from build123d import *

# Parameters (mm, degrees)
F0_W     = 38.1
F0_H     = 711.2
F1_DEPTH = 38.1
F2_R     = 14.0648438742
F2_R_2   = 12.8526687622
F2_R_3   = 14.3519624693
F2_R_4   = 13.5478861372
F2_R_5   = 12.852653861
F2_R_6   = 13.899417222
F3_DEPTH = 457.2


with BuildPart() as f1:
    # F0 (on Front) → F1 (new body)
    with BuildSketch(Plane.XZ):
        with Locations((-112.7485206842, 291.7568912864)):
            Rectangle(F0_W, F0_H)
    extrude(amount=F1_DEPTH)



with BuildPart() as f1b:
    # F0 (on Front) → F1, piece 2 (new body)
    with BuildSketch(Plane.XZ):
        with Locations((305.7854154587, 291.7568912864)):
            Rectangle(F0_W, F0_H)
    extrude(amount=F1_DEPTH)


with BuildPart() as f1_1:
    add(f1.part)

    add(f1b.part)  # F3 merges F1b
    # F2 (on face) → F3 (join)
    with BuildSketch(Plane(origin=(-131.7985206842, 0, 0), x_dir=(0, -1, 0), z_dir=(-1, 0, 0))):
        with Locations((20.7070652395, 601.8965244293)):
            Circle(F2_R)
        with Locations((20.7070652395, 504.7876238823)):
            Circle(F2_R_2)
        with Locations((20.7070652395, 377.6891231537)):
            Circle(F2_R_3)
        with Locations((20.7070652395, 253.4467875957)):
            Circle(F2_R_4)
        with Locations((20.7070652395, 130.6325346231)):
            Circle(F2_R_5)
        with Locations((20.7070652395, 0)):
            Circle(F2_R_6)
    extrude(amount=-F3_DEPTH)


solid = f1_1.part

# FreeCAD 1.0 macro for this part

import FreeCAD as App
import Part
import Sketcher
from FreeCAD import Vector
Q = App.Units.Quantity

doc = App.newDocument("Part")
body = doc.addObject("PartDesign::Body", "Body")

sketch1 = body.newObject("Sketcher::SketchObject", "Sketch")
sketch1.AttachmentSupport = (doc.getObject("XZ_Plane"), [""])
sketch1.MapMode = "FlatFace"
sketch1.addGeometry([
    Part.LineSegment(Vector(-132, 647, 0), Vector(-132, -64, 0)),
    Part.LineSegment(Vector(-132, -64, 0), Vector(-94, -64, 0)),
    Part.LineSegment(Vector(-94, -64, 0), Vector(-94, 647, 0)),
    Part.LineSegment(Vector(-94, 647, 0), Vector(-132, 647, 0)),
], False)
sketch1.addConstraint([
    Sketcher.Constraint("Coincident", 0, 2, 1, 1),
    Sketcher.Constraint("Coincident", 1, 2, 2, 1),
    Sketcher.Constraint("Coincident", 2, 2, 3, 1),
    Sketcher.Constraint("Coincident", 3, 2, 0, 1),
    Sketcher.Constraint("Vertical", 0),
    Sketcher.Constraint("Horizontal", 1),
    Sketcher.Constraint("Vertical", 2),
    Sketcher.Constraint("Horizontal", 3),
    Sketcher.Constraint("DistanceY", 0, 2, 0, 1, Q("28 in")),
    Sketcher.Constraint("DistanceX", 1, 1, 1, 2, Q("1.5 in")),
    Sketcher.Constraint("DistanceX", 0, 2, -1, 1, 131.798521),
    Sketcher.Constraint("DistanceY", 0, 2, -1, 1, 63.843109),
])
pad1 = body.newObject("PartDesign::Pad", "Pad")
pad1.Profile = sketch1
pad1.Length = Q("1.5 in")
body2 = doc.addObject("PartDesign::Body", "Body001")

sketch2 = body2.newObject("Sketcher::SketchObject", "Sketch001")
sketch2.AttachmentSupport = (doc.getObject("XZ_Plane001"), [""])
sketch2.MapMode = "FlatFace"
sketch2.addGeometry([
    Part.LineSegment(Vector(287, 647, 0), Vector(287, -64, 0)),
    Part.LineSegment(Vector(287, -64, 0), Vector(325, -64, 0)),
    Part.LineSegment(Vector(325, -64, 0), Vector(325, 647, 0)),
    Part.LineSegment(Vector(325, 647, 0), Vector(287, 647, 0)),
], False)
sketch2.addConstraint([
    Sketcher.Constraint("Coincident", 0, 2, 1, 1),
    Sketcher.Constraint("Coincident", 1, 2, 2, 1),
    Sketcher.Constraint("Coincident", 2, 2, 3, 1),
    Sketcher.Constraint("Coincident", 3, 2, 0, 1),
    Sketcher.Constraint("Vertical", 0),
    Sketcher.Constraint("Horizontal", 1),
    Sketcher.Constraint("Vertical", 2),
    Sketcher.Constraint("Horizontal", 3),
    Sketcher.Constraint("DistanceY", 0, 2, 0, 1, Q("28 in")),
    Sketcher.Constraint("DistanceX", 1, 1, 1, 2, Q("1.5 in")),
    Sketcher.Constraint("DistanceY", 0, 2, -1, 1, 63.843109),
    Sketcher.Constraint("DistanceX", -1, 1, 0, 2, 286.735415),
])
pad2 = body2.newObject("PartDesign::Pad", "Pad001")
pad2.Profile = sketch2
pad2.Length = Q("1.5 in")
body.AllowCompound = True
doc.recompute()

boolean = body.newObject("PartDesign::Boolean", "Boolean")
boolean.Type = "Fuse"
boolean.addObjects([body2])

sketch3 = body.newObject("Sketcher::SketchObject", "Sketch002")
sketch3.AttachmentSupport = (doc.getObject("YZ_Plane"), [""])
sketch3.MapMode = "FlatFace"
sketch3.AttachmentOffset = App.Placement(Vector(0, 0, -131.798521), App.Rotation())
sketch3.addGeometry([
    Part.Circle(Vector(-21, 602, 0), Vector(0, 0, 1), 14),
    Part.Circle(Vector(-21, 505, 0), Vector(0, 0, 1), 13),
    Part.Circle(Vector(-21, 378, 0), Vector(0, 0, 1), 14),
    Part.Circle(Vector(-21, 253, 0), Vector(0, 0, 1), 14),
    Part.Circle(Vector(-21, 131, 0), Vector(0, 0, 1), 13),
    Part.Circle(Vector(-21, 0, 0), Vector(0, 0, 1), 14),
], False)
sketch3.addConstraint([
    Sketcher.Constraint("PointOnObject", 5, 3, -1),
    Sketcher.Constraint("Vertical", 0, 3, 1, 3),
    Sketcher.Constraint("Vertical", 1, 3, 2, 3),
    Sketcher.Constraint("Vertical", 2, 3, 3, 3),
    Sketcher.Constraint("Vertical", 3, 3, 4, 3),
    Sketcher.Constraint("Vertical", 4, 3, 5, 3),
    Sketcher.Constraint("Diameter", 0, 28.129688),
    Sketcher.Constraint("Diameter", 1, 25.705338),
    Sketcher.Constraint("Diameter", 2, 28.703925),
    Sketcher.Constraint("Diameter", 3, 27.095772),
    Sketcher.Constraint("Diameter", 4, 25.705308),
    Sketcher.Constraint("Diameter", 5, 27.798834),
    Sketcher.Constraint("DistanceY", 1, 3, 0, 3, 97.108901),
    Sketcher.Constraint("DistanceY", 2, 3, 1, 3, 127.098501),
    Sketcher.Constraint("DistanceY", 4, 3, 2, 3, 247.056589),
    Sketcher.Constraint("DistanceX", 0, 3, -1, 1, 20.707065),
    Sketcher.Constraint("DistanceY", -1, 1, 0, 3, 601.896524),
    Sketcher.Constraint("DistanceY", -1, 1, 3, 3, 253.446788),
])
pad3 = body.newObject("PartDesign::Pad", "Pad002")
pad3.Profile = sketch3
pad3.Length = Q("18 in")

doc.recompute()
